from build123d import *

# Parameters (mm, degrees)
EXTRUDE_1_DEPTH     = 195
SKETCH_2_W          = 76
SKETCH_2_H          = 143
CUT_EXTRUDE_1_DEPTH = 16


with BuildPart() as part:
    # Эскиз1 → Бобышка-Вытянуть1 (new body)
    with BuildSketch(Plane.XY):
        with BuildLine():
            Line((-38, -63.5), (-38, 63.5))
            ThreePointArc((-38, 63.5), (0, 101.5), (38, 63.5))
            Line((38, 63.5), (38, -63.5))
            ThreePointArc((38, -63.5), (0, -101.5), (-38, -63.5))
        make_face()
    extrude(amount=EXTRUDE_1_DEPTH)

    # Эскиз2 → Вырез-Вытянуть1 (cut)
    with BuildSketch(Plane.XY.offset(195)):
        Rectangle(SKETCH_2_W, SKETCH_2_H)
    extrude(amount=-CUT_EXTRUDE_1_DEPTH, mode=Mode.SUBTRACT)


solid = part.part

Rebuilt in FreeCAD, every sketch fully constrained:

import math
import FreeCAD as App
import Part
import Sketcher

V = App.Vector
Q = App.Units.Quantity


def add_polygon(sketch, points):
    """Adds a closed chain of lines whose ends are joined by coincident constraints."""
    first, n = sketch.GeometryCount, len(points)
    for a, b in zip(points, points[1:] + points[:1]):
        sketch.addGeometry(Part.LineSegment(App.Vector(*a, 0), App.Vector(*b, 0)), False)
    for i in range(n):
        sketch.addConstraint(Sketcher.Constraint("Coincident", first + i, 2, first + (i + 1) % n, 1))

doc = App.newDocument("Part")
body = doc.addObject("PartDesign::Body", "Body")

sketch1 = body.newObject("Sketcher::SketchObject", "Sketch")
sketch1.AttachmentSupport = (doc.getObject("XY_Plane"), [""])
sketch1.MapMode = "FlatFace"
sketch1.addGeometry([
    Part.LineSegment(V(-38, 64, 0), V(-38, -64, 0)),
    Part.ArcOfCircle(Part.Circle(V(0, -64, 0), V(0, 0, 1), 38), math.radians(180), math.radians(360)),
    Part.LineSegment(V(38, -64, 0), V(38, 64, 0)),
    Part.ArcOfCircle(Part.Circle(V(0, 64, 0), V(0, 0, 1), 38), math.radians(0), math.radians(180)),
], False)
sketch1.addConstraint([
    Sketcher.Constraint("Tangent", 0, 2, 1, 1),
    Sketcher.Constraint("Tangent", 1, 2, 2, 1),
    Sketcher.Constraint("Tangent", 2, 2, 3, 1),
    Sketcher.Constraint("Tangent", 3, 2, 0, 1),
    Sketcher.Constraint("Vertical", 0),
    Sketcher.Constraint("Vertical", 2),
    Sketcher.Constraint("Symmetric", 1, 3, 3, 3, -1, 1),
    Sketcher.Constraint("Radius", 1, Q("38 mm")),
    Sketcher.Constraint("DistanceY", 0, 2, 0, 1, Q("127 mm")),
])
pad1 = body.newObject("PartDesign::Pad", "Pad")
pad1.Profile = sketch1
pad1.Length = 195

sketch2 = body.newObject("Sketcher::SketchObject", "Sketch001")
sketch2.AttachmentSupport = (doc.getObject("XY_Plane"), [""])
sketch2.MapMode = "FlatFace"
sketch2.AttachmentOffset = App.Placement(V(0, 0, 195), App.Rotation())
add_polygon(sketch2, [(-38, 72), (-38, -72), (38, -72), (38, 72)])
sketch2.addConstraint([
    Sketcher.Constraint("Vertical", 0),
    Sketcher.Constraint("Horizontal", 1),
    Sketcher.Constraint("Vertical", 2),
    Sketcher.Constraint("Horizontal", 3),
    Sketcher.Constraint("Symmetric", 0, 2, 2, 2, -1, 1),
    Sketcher.Constraint("DistanceX", 1, 1, 1, 2, Q("76 mm")),
    Sketcher.Constraint("DistanceY", 0, 2, 0, 1, Q("143 mm")),
])
pocket1 = body.newObject("PartDesign::Pocket", "Pocket")
pocket1.Profile = sketch2
pocket1.Length = 16

doc.recompute()
